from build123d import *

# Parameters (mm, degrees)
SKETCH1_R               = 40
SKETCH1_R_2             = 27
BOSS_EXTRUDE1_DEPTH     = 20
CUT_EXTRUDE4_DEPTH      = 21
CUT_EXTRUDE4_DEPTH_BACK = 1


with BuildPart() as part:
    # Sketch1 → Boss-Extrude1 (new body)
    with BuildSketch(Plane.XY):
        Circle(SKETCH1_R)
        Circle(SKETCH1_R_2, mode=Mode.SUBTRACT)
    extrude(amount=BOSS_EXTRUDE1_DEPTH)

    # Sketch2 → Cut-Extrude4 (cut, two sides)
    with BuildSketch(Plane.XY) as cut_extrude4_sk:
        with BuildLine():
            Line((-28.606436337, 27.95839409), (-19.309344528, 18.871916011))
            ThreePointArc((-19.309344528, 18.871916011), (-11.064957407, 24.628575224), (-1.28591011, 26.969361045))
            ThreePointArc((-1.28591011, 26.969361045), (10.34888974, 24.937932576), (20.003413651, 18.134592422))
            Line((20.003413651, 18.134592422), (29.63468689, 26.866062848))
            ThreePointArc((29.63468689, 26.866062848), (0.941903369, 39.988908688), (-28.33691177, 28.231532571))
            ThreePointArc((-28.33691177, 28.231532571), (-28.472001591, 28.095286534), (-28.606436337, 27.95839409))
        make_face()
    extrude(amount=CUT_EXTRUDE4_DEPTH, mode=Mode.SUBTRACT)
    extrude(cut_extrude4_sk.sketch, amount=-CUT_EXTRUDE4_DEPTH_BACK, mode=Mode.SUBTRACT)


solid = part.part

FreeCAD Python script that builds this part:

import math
import FreeCAD as App
import Part
import Sketcher

V = App.Vector

doc = App.newDocument("Part")
body = doc.addObject("PartDesign::Body", "Body")

sketch1 = body.newObject("Sketcher::SketchObject", "Sketch")
sketch1.AttachmentSupport = (doc.getObject("XY_Plane"), [""])
sketch1.MapMode = "FlatFace"
sketch1.addGeometry(Part.Circle(V(0, 0, 0), V(0, 0, 1), 40), False)
sketch1.addGeometry(Part.Circle(V(0, 0, 0), V(0, 0, 1), 27), False)
sketch1.addConstraint(Sketcher.Constraint("Coincident", 0, 3, -1, 1))
sketch1.addConstraint(Sketcher.Constraint("Coincident", 1, 3, -1, 1))
sketch1.addConstraint(Sketcher.Constraint("Diameter", 0, 80.0))
sketch1.addConstraint(Sketcher.Constraint("Diameter", 1, 54.0))
pad1 = body.newObject("PartDesign::Pad", "Pad")
pad1.Profile = sketch1
pad1.Length = 20

sketch2 = body.newObject("Sketcher::SketchObject", "Sketch001")
sketch2.AttachmentSupport = (doc.getObject("XY_Plane"), [""])
sketch2.MapMode = "FlatFace"
sketch2.addGeometry(Part.LineSegment(V(-28.61, 27.96, 0), V(-19.31, 18.87, 0)), False)
sketch2.addGeometry(Part.ArcOfCircle(Part.Circle(V(0, 0, 0), V(0, 0, 1), 27), math.radians(93), math.radians(136)), False)
sketch2.addGeometry(Part.ArcOfCircle(Part.Circle(V(0, 0, 0), V(0, 0, 1), 27), math.radians(42), math.radians(93)), False)
sketch2.addGeometry(Part.LineSegment(V(20, 18.13, 0), V(29.63, 26.87, 0)), False)
sketch2.addGeometry(Part.ArcOfCircle(Part.Circle(V(0, 0, 0), V(0, 0, 1), 40), math.radians(42), math.radians(135)), False)
sketch2.addGeometry(Part.ArcOfCircle(Part.Circle(V(0, 0, 0), V(0, 0, 1), 40), math.radians(135.11), math.radians(135.66)), False)
sketch2.addConstraint(Sketcher.Constraint("Coincident", 0, 2, 1, 2))
sketch2.addConstraint(Sketcher.Constraint("Tangent", 1, 1, 2, 2))
sketch2.addConstraint(Sketcher.Constraint("Coincident", 2, 1, 3, 1))
sketch2.addConstraint(Sketcher.Constraint("Coincident", 3, 2, 4, 1))
sketch2.addConstraint(Sketcher.Constraint("Tangent", 4, 2, 5, 1))
sketch2.addConstraint(Sketcher.Constraint("Coincident", 5, 2, 0, 1))
sketch2.addConstraint(Sketcher.Constraint("Coincident", 1, 3, -1, 1))
sketch2.addConstraint(Sketcher.Constraint("Coincident", 4, 3, -1, 1))
sketch2.addConstraint(Sketcher.Constraint("Equal", 1, 2))
sketch2.addConstraint(Sketcher.Constraint("Radius", 1, 27.0))
sketch2.addConstraint(Sketcher.Constraint("Radius", 4, 40.0))
sketch2.addConstraint(Sketcher.Constraint("Radius", 5, 39.999952))
sketch2.addConstraint(Sketcher.Constraint("DistanceX", 4, 2, 1, 1, 27.051002))
sketch2.addConstraint(Sketcher.Constraint("DistanceY", 3, 2, 1, 1, 0.103298))
sketch2.addConstraint(Sketcher.Constraint("DistanceY", 5, 3, 4, 2, 28.231499))
sketch2.addConstraint(Sketcher.Constraint("DistanceX", 0, 2, 5, 3, 19.30931))
sketch2.addConstraint(Sketcher.Constraint("DistanceY", 2, 1, 1, 1, 8.834769))
sketch2.addConstraint(Sketcher.Constraint("DistanceY", 5, 2, 4, 2, 0.273138))
pocket1 = body.newObject("PartDesign::Pocket", "Pocket")
pocket1.Profile = sketch2
pocket1.Type = "ThroughAll"
pocket1.Midplane = True

doc.recompute()
